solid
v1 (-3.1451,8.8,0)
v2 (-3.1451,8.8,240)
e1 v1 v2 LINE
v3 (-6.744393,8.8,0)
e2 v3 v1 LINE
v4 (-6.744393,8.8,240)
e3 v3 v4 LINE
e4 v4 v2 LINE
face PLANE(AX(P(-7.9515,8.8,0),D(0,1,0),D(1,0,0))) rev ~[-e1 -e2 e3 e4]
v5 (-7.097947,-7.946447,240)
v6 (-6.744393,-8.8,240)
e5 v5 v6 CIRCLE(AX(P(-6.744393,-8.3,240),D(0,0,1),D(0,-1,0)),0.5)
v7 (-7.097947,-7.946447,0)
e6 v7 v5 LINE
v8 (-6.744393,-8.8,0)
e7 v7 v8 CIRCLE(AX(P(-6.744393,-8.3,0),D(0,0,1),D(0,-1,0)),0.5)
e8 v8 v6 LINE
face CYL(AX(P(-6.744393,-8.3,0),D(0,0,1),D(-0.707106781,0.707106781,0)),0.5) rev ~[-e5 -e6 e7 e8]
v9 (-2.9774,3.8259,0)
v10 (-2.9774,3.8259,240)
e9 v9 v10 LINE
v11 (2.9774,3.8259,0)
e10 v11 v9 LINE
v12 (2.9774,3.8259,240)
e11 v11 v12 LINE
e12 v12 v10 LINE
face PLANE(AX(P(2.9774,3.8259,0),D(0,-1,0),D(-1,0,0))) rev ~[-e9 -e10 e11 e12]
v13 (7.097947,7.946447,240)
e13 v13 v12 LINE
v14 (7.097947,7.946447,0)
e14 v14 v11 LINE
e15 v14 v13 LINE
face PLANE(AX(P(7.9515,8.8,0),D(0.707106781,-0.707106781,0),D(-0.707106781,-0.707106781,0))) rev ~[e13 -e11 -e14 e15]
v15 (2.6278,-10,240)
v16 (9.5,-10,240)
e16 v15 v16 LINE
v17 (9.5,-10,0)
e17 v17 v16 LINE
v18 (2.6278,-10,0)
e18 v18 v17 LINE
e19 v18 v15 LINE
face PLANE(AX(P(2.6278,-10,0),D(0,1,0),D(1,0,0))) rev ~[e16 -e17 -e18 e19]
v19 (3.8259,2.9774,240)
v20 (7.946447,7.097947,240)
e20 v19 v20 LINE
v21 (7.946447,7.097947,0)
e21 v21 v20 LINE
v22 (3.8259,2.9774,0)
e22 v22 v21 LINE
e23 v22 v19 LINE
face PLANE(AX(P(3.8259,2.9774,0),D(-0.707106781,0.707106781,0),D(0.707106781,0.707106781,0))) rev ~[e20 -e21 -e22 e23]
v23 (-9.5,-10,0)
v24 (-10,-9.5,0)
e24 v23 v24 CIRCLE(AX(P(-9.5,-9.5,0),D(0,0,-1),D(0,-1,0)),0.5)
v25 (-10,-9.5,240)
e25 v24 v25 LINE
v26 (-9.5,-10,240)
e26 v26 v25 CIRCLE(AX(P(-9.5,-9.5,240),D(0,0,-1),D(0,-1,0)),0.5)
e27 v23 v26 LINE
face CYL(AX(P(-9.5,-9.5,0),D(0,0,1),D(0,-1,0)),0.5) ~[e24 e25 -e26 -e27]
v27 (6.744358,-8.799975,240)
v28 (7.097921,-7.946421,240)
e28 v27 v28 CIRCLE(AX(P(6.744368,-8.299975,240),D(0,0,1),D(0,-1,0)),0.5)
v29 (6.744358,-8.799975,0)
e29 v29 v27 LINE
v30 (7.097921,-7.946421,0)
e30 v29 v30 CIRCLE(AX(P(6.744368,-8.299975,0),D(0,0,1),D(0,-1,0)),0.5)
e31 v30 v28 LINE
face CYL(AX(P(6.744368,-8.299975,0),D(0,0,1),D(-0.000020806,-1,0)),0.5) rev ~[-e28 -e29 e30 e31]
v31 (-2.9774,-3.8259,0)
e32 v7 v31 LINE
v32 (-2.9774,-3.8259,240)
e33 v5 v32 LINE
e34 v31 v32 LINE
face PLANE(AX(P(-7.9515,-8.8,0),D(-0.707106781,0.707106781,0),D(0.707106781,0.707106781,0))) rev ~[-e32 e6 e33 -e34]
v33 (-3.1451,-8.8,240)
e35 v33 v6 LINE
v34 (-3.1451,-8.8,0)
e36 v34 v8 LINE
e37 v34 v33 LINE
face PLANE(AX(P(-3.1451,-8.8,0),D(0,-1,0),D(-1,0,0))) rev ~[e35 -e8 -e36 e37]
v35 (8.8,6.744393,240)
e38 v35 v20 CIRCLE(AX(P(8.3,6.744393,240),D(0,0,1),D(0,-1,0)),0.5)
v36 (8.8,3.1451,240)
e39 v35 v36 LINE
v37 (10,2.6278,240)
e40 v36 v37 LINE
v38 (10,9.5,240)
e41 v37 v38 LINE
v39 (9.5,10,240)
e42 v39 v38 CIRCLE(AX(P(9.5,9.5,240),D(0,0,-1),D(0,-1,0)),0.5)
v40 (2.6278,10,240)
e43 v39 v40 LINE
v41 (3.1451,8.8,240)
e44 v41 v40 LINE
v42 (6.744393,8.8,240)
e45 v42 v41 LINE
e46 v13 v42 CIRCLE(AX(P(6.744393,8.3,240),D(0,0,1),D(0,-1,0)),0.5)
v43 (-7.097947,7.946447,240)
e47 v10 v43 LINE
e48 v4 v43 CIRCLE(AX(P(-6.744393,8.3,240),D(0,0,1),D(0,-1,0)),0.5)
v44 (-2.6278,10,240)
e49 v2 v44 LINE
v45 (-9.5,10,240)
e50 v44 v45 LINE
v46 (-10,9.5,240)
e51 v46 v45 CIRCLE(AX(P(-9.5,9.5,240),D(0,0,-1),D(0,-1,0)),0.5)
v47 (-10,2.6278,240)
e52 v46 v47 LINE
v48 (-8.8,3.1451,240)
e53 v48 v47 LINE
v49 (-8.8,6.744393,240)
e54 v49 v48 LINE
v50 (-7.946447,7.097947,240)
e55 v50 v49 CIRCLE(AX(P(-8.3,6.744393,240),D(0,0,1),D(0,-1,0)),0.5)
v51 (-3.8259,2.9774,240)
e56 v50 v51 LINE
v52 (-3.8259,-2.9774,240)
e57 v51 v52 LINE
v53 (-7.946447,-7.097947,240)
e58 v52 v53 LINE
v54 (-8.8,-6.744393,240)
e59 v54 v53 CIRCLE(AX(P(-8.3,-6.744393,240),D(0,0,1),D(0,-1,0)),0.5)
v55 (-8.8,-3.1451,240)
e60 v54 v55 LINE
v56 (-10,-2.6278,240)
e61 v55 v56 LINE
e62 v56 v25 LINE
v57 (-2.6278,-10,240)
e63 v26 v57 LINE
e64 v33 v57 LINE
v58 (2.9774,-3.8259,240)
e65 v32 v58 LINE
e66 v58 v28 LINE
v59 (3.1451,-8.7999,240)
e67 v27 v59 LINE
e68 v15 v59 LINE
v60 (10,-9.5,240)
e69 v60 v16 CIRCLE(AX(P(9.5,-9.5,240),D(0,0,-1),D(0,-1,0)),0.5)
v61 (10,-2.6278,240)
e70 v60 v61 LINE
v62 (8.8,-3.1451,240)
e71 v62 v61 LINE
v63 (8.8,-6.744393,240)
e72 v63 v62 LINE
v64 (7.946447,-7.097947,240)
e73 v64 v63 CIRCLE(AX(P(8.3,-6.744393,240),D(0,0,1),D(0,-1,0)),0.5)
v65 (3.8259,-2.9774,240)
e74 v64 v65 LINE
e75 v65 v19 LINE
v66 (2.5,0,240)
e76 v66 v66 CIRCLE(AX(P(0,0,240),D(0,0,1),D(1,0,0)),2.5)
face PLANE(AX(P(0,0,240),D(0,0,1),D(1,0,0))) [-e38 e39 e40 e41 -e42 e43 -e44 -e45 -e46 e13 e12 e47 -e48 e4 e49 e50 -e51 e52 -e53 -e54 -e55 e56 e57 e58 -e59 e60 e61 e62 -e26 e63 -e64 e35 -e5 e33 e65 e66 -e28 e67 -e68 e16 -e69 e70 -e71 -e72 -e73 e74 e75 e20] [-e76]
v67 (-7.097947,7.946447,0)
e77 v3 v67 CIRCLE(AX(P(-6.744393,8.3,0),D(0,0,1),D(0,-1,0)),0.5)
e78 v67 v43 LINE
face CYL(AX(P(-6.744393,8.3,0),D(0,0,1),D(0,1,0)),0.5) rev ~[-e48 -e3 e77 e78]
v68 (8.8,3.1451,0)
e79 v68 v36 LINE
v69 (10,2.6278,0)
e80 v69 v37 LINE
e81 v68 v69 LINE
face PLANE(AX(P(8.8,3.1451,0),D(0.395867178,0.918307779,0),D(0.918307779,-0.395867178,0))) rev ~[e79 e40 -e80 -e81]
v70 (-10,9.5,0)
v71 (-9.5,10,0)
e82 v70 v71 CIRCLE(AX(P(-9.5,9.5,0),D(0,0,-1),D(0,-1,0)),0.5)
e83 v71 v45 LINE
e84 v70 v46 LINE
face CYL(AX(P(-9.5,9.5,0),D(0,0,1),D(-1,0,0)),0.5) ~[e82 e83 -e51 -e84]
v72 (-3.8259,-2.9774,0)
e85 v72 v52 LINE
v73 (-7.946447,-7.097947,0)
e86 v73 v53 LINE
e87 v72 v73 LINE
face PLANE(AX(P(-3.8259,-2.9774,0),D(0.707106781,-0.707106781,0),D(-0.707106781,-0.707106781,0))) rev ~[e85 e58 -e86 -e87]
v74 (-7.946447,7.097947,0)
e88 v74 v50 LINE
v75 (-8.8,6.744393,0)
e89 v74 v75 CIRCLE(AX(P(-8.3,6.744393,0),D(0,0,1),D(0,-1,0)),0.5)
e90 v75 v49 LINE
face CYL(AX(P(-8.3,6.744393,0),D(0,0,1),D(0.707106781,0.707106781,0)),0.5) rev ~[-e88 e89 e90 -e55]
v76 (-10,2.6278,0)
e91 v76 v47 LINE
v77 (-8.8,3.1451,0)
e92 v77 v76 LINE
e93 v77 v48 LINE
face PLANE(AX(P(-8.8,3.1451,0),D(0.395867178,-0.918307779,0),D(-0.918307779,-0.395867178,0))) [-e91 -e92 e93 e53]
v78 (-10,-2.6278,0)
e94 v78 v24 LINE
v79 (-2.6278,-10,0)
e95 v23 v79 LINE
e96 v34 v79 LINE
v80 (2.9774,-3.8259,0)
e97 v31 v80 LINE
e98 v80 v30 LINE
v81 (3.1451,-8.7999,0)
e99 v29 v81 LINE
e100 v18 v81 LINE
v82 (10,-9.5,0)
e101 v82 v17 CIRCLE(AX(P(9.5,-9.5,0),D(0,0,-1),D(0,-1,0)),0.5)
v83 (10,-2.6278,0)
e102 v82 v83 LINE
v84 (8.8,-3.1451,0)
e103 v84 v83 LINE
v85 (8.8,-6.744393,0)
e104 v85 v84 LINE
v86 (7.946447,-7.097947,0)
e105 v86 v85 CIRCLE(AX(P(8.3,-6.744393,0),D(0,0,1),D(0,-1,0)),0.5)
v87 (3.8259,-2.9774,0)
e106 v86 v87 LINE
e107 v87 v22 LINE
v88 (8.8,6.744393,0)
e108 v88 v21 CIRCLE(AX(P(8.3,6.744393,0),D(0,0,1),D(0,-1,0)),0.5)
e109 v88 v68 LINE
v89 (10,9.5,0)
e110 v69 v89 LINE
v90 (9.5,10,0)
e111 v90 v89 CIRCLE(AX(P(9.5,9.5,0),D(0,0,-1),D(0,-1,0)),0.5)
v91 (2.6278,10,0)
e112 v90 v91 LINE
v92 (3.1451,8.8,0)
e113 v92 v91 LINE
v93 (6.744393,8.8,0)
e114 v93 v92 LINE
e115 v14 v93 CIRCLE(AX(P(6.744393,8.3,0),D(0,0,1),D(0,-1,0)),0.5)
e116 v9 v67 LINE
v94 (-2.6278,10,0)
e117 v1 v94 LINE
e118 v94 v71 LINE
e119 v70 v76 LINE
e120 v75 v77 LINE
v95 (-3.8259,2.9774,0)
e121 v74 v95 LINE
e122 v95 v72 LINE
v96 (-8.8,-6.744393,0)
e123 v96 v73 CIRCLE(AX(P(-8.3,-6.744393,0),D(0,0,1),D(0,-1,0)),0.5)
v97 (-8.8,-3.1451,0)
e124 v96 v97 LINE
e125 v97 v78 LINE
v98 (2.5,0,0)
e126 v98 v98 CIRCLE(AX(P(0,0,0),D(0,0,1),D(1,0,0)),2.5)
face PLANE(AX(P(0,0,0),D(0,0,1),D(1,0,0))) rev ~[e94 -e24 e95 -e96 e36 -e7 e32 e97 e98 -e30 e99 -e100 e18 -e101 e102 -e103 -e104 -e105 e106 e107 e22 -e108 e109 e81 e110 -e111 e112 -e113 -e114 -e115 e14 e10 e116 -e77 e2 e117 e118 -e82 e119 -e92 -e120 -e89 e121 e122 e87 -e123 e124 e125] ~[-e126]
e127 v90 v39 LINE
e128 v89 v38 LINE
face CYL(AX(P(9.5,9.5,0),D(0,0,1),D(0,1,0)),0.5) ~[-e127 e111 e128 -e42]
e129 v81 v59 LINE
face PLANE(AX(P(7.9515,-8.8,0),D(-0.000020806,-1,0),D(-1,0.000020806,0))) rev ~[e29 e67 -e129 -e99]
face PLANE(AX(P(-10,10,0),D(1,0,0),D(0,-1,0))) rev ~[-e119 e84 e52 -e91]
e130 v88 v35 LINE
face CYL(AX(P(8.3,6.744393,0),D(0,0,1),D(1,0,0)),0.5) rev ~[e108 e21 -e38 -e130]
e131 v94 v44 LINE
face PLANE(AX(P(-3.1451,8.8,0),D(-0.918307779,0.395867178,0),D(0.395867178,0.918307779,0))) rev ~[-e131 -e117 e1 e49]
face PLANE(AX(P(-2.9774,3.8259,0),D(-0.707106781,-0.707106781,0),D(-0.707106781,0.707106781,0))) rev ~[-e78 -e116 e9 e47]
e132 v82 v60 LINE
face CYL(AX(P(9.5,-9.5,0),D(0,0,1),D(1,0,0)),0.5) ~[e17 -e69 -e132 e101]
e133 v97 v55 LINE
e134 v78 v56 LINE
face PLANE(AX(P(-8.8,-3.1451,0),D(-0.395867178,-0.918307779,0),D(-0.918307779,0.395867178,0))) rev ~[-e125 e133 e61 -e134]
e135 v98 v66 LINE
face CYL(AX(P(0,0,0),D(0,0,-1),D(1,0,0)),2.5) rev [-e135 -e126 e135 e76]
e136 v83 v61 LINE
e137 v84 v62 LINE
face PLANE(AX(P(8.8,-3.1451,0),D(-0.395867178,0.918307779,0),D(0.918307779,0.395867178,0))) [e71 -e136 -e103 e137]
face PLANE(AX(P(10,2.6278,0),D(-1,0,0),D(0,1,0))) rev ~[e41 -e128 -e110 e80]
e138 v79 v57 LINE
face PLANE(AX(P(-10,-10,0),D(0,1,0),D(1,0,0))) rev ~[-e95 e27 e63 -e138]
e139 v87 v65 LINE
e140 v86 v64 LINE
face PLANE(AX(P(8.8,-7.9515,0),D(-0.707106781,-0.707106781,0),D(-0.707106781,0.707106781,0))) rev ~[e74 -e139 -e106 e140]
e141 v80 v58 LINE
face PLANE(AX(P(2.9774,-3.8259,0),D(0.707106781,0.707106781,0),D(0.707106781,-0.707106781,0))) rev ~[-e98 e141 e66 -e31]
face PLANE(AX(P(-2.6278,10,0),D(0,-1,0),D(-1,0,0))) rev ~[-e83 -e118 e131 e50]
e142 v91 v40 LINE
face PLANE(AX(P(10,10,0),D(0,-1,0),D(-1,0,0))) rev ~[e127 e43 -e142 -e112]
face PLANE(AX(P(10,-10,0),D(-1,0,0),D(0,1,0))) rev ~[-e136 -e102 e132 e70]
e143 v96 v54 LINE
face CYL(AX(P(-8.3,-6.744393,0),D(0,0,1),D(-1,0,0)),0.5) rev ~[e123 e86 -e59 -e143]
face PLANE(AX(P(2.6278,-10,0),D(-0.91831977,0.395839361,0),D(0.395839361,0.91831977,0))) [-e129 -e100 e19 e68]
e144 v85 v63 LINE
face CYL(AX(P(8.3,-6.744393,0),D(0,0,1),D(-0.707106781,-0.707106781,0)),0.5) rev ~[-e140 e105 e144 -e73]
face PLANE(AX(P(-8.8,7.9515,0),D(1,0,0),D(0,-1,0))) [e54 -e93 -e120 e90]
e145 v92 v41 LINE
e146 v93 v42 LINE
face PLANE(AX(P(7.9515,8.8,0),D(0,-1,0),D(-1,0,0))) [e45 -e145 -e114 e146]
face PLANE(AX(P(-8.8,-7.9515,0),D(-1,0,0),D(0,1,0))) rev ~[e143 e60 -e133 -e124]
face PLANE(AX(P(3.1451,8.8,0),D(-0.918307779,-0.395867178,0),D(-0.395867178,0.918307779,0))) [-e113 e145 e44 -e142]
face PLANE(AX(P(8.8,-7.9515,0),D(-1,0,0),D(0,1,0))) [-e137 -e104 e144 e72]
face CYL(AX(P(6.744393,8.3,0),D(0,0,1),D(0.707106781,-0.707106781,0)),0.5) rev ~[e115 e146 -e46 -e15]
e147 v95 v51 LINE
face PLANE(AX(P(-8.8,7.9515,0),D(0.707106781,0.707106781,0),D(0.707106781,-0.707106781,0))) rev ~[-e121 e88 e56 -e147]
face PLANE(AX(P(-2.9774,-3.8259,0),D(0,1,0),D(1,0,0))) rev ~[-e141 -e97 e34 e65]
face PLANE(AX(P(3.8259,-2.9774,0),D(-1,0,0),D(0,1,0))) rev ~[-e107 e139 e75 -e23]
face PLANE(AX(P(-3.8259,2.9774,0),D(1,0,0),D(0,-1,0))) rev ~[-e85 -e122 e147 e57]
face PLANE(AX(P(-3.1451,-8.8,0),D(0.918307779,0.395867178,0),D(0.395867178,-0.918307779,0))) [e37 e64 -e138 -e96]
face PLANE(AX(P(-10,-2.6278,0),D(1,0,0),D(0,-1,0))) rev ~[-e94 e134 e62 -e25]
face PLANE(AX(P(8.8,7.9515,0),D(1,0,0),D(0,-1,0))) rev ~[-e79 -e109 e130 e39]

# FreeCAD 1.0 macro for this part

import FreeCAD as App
import Part
import Sketcher

V = App.Vector
Q = App.Units.Quantity


def edges_at(feature, points):
    """Names of the edges that pass closest to the given points."""
    edges = feature.Shape.Edges
    near = lambda p: min(range(len(edges)), key=lambda i: edges[i].distToShape(Part.Vertex(*p))[0])
    return sorted({f"Edge{near(p) + 1}" for p in points})

doc = App.newDocument("Part")
body = doc.addObject("PartDesign::Body", "Body")

# Sketch on XY plane
sketch1 = body.newObject("Sketcher::SketchObject", "Sketch")
sketch1.AttachmentSupport = (doc.getObject("XY_Plane"), [""])
sketch1.MapMode = "FlatFace"
sketch1.addGeometry([
    Part.LineSegment(V(7.9515, 8.8, 0), V(2.9774, 3.8259, 0)),  # 0
    Part.LineSegment(V(2.9774, 3.8259, 0), V(-2.9774, 3.8259, 0)),  # 1
    Part.LineSegment(V(-2.9774, 3.8259, 0), V(-7.9515, 8.8, 0)),  # 2
    Part.LineSegment(V(-7.9515, 8.8, 0), V(-3.1451, 8.8, 0)),  # 3
    Part.LineSegment(V(-3.1451, 8.8, 0), V(-2.6278, 10, 0)),  # 4
    Part.LineSegment(V(-2.6278, 10, 0), V(-10, 10, 0)),  # 5
    Part.LineSegment(V(-10, 10, 0), V(-10, 2.6278, 0)),  # 6
    Part.LineSegment(V(-10, 2.6278, 0), V(-8.8, 3.1451, 0)),  # 7
    Part.LineSegment(V(-8.8, 3.1451, 0), V(-8.8, 7.9515, 0)),  # 8
    Part.LineSegment(V(-8.8, 7.9515, 0), V(-3.8259, 2.9774, 0)),  # 9
    Part.LineSegment(V(-3.8259, 2.9774, 0), V(-3.8259, -2.9774, 0)),  # 10
    Part.LineSegment(V(-3.8259, -2.9774, 0), V(-8.8, -7.9515, 0)),  # 11
    Part.LineSegment(V(-8.8, -7.9515, 0), V(-8.8, -3.1451, 0)),  # 12
    Part.LineSegment(V(-8.8, -3.1451, 0), V(-10, -2.6278, 0)),  # 13
    Part.LineSegment(V(-10, -2.6278, 0), V(-10, -10, 0)),  # 14
    Part.LineSegment(V(-10, -10, 0), V(-2.6278, -10, 0)),  # 15
    Part.LineSegment(V(-2.6278, -10, 0), V(-3.1451, -8.8, 0)),  # 16
    Part.LineSegment(V(-3.1451, -8.8, 0), V(-7.9515, -8.8, 0)),  # 17
    Part.LineSegment(V(-7.9515, -8.8, 0), V(-2.9774, -3.8259, 0)),  # 18
    Part.LineSegment(V(-2.9774, -3.8259, 0), V(2.9774, -3.8259, 0)),  # 19
    Part.LineSegment(V(2.9774, -3.8259, 0), V(7.9515, -8.8, 0)),  # 20
    Part.LineSegment(V(7.9515, -8.8, 0), V(3.1451, -8.7999, 0)),  # 21
    Part.LineSegment(V(3.1451, -8.7999, 0), V(2.6278, -10, 0)),  # 22
    Part.LineSegment(V(2.6278, -10, 0), V(10, -10, 0)),  # 23
    Part.LineSegment(V(10, -10, 0), V(10, -2.6278, 0)),  # 24
    Part.LineSegment(V(10, -2.6278, 0), V(8.8, -3.1451, 0)),  # 25
    Part.LineSegment(V(8.8, -3.1451, 0), V(8.8, -7.9515, 0)),  # 26
    Part.LineSegment(V(8.8, -7.9515, 0), V(3.8259, -2.9774, 0)),  # 27
    Part.LineSegment(V(3.8259, -2.9774, 0), V(3.8259, 2.9774, 0)),  # 28
    Part.LineSegment(V(3.8259, 2.9774, 0), V(8.8, 7.9515, 0)),  # 29
    Part.LineSegment(V(8.8, 7.9515, 0), V(8.8, 3.1451, 0)),  # 30
    Part.LineSegment(V(8.8, 3.1451, 0), V(10, 2.6278, 0)),  # 31
    Part.LineSegment(V(10, 2.6278, 0), V(10, 10, 0)),  # 32
    Part.LineSegment(V(10, 10, 0), V(2.6278, 10, 0)),  # 33
    Part.LineSegment(V(2.6278, 10, 0), V(3.1451, 8.8, 0)),  # 34
    Part.LineSegment(V(3.1451, 8.8, 0), V(7.9515, 8.8, 0)),  # 35
    Part.Circle(V(0, 0, 0), V(0, 0, 1), 2.5),  # 36
], False)
sketch1.addConstraint([
    Sketcher.Constraint("Coincident", 0, 2, 1, 1),
    Sketcher.Constraint("Coincident", 1, 2, 2, 1),
    Sketcher.Constraint("Coincident", 2, 2, 3, 1),
    Sketcher.Constraint("Coincident", 3, 2, 4, 1),
    Sketcher.Constraint("Coincident", 4, 2, 5, 1),
    Sketcher.Constraint("Coincident", 5, 2, 6, 1),
    Sketcher.Constraint("Coincident", 6, 2, 7, 1),
    Sketcher.Constraint("Coincident", 7, 2, 8, 1),
    Sketcher.Constraint("Coincident", 8, 2, 9, 1),
    Sketcher.Constraint("Coincident", 9, 2, 10, 1),
    Sketcher.Constraint("Coincident", 10, 2, 11, 1),
    Sketcher.Constraint("Coincident", 11, 2, 12, 1),
    Sketcher.Constraint("Coincident", 12, 2, 13, 1),
    Sketcher.Constraint("Coincident", 13, 2, 14, 1),
    Sketcher.Constraint("Coincident", 14, 2, 15, 1),
    Sketcher.Constraint("Coincident", 15, 2, 16, 1),
    Sketcher.Constraint("Coincident", 16, 2, 17, 1),
    Sketcher.Constraint("Coincident", 17, 2, 18, 1),
    Sketcher.Constraint("Coincident", 18, 2, 19, 1),
    Sketcher.Constraint("Coincident", 19, 2, 20, 1),
    Sketcher.Constraint("Coincident", 20, 2, 21, 1),
    Sketcher.Constraint("Coincident", 21, 2, 22, 1),
    Sketcher.Constraint("Coincident", 22, 2, 23, 1),
    Sketcher.Constraint("Coincident", 23, 2, 24, 1),
    Sketcher.Constraint("Coincident", 24, 2, 25, 1),
    Sketcher.Constraint("Coincident", 25, 2, 26, 1),
    Sketcher.Constraint("Coincident", 26, 2, 27, 1),
    Sketcher.Constraint("Coincident", 27, 2, 28, 1),
    Sketcher.Constraint("Coincident", 28, 2, 29, 1),
    Sketcher.Constraint("Coincident", 29, 2, 30, 1),
    Sketcher.Constraint("Coincident", 30, 2, 31, 1),
    Sketcher.Constraint("Coincident", 31, 2, 32, 1),
    Sketcher.Constraint("Coincident", 32, 2, 33, 1),
    Sketcher.Constraint("Coincident", 33, 2, 34, 1),
    Sketcher.Constraint("Coincident", 34, 2, 35, 1),
    Sketcher.Constraint("Coincident", 35, 2, 0, 1),
    Sketcher.Constraint("Horizontal", 1),
    Sketcher.Constraint("Horizontal", 3),
    Sketcher.Constraint("Horizontal", 5),
    Sketcher.Constraint("Vertical", 6),
    Sketcher.Constraint("Vertical", 8),
    Sketcher.Constraint("Vertical", 10),
    Sketcher.Constraint("Vertical", 12),
    Sketcher.Constraint("Vertical", 14),
    Sketcher.Constraint("Horizontal", 15),
    Sketcher.Constraint("Horizontal", 17),
    Sketcher.Constraint("Horizontal", 19),
    Sketcher.Constraint("Horizontal", 21),
    Sketcher.Constraint("Horizontal", 23),
    Sketcher.Constraint("Vertical", 24),
    Sketcher.Constraint("Vertical", 26),
    Sketcher.Constraint("Vertical", 28),
    Sketcher.Constraint("Vertical", 30),
    Sketcher.Constraint("Vertical", 32),
    Sketcher.Constraint("Horizontal", 33),
    Sketcher.Constraint("Horizontal", 35),
    Sketcher.Constraint("Coincident", 36, 3, -1, 1),
    Sketcher.Constraint("Symmetric", 0, 2, 18, 2, -1, 1),
    Sketcher.Constraint("Symmetric", 2, 2, 20, 2, -1, 1),
    Sketcher.Constraint("Symmetric", 4, 2, 22, 2, -1, 1),
    Sketcher.Constraint("Symmetric", 6, 2, 24, 2, -1, 1),
    Sketcher.Constraint("Symmetric", 7, 2, 25, 2, -1, 1),
    Sketcher.Constraint("Symmetric", 9, 2, 27, 2, -1, 1),
    Sketcher.Constraint("Symmetric", 11, 2, 29, 2, -1, 1),
    Sketcher.Constraint("Symmetric", 13, 2, 31, 2, -1, 1),
    Sketcher.Constraint("Symmetric", 15, 2, 33, 2, -1, 1),
    Sketcher.Constraint("Symmetric", 16, 2, 34, 2, -1, 1),
    Sketcher.Constraint("Symmetric", 17, 2, 20, 2, -2),
    Sketcher.Constraint("Symmetric", 15, 2, 22, 2, -2),
    Sketcher.Constraint("Symmetric", 13, 2, 24, 2, -2),
    Sketcher.Constraint("Symmetric", 12, 2, 25, 2, -2),
    Sketcher.Constraint("Perpendicular", 0, 2),
    Sketcher.Constraint("Parallel", 2, 9),
    Sketcher.Constraint("Perpendicular", 9, 11),
    Sketcher.Constraint("Perpendicular", 4, 13),
    Sketcher.Constraint("Perpendicular", 7, 16),
    Sketcher.Constraint("Parallel", 11, 18),
    Sketcher.Constraint("Perpendicular", 18, 20),
    Sketcher.Constraint("Perpendicular", 13, 22),
    Sketcher.Constraint("Parallel", 20, 27),
    Sketcher.Constraint("Perpendicular", 27, 29),
    Sketcher.Constraint("Perpendicular", 22, 31),
    Sketcher.Constraint("Horizontal", 11, 2, 26, 2),
    Sketcher.Constraint("Horizontal", 10, 2, 27, 2),
    Sketcher.Constraint("Equal", 33, 6),
    Sketcher.Constraint("Equal", 35, 8),
    Sketcher.Constraint("Equal", 19, 10),
    Sketcher.Constraint("Equal", 4, 7),
    Sketcher.Constraint("Equal", 2, 9),
    Sketcher.Constraint("Diameter", 36, Q("5 mm")),
    Sketcher.Constraint("DistanceY", 3, 2, 4, 2, Q("1.2 mm")),
    Sketcher.Constraint("DistanceY", -1, 1, 4, 2, Q("10 mm")),
    Sketcher.Constraint("Angle", 4, Q("66.68 deg")),
    Sketcher.Constraint("DistanceX", 1, 2, 1, 1, Q("5.9548 mm")),
    Sketcher.Constraint("DistanceX", 3, 1, 3, 2, Q("4.8064 mm")),
    Sketcher.Constraint("DistanceX", 5, 2, 5, 1, Q("7.3722 mm")),
])
pad1 = body.newObject("PartDesign::Pad", "Pad")
pad1.Profile = sketch1
pad1.Length = 240
doc.recompute()

fillet = body.newObject("PartDesign::Fillet", "Fillet")
fillet.Base = (pad1, edges_at(pad1, [
    (-8.8, 7.952, 120),
    (-7.952, 8.8, 120),
    (8.8, 7.952, 120),
    (7.952, 8.8, 120),
    (8.8, -7.952, 120),
    (7.952, -8.8, 120),
    (-7.952, -8.8, 120),
    (-8.8, -7.952, 120),
    (-10, -10, 120),
    (10, 10, 120),
    (-10, 10, 120),
    (10, -10, 120),
]))
fillet.Radius = 0.5

doc.recompute()
